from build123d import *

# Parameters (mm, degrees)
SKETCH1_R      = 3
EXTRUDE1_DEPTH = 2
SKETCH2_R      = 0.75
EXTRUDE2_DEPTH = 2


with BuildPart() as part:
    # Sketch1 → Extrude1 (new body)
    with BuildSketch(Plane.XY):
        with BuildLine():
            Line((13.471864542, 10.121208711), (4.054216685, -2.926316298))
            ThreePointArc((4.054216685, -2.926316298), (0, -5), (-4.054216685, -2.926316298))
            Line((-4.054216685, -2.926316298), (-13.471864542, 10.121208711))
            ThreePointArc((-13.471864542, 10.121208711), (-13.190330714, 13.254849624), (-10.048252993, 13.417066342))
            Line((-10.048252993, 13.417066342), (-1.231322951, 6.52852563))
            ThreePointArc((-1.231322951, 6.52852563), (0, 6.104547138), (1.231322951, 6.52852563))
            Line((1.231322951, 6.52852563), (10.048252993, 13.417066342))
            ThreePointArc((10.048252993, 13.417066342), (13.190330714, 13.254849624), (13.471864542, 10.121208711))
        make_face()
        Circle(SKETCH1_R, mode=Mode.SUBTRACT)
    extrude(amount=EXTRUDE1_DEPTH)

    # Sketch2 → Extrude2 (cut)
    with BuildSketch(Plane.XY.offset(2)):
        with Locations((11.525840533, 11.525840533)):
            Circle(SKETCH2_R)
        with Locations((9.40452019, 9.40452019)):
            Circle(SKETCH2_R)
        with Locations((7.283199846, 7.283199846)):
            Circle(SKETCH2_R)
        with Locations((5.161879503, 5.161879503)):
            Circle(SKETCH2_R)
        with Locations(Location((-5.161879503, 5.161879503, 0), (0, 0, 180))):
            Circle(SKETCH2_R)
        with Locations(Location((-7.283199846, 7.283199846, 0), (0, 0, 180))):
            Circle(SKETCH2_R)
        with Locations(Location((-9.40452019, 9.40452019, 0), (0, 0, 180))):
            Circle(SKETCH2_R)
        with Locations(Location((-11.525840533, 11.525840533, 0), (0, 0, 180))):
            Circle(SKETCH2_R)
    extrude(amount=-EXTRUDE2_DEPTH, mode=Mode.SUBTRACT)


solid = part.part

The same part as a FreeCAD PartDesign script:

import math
import FreeCAD as App
import Part
import Sketcher
from FreeCAD import Vector
Q = App.Units.Quantity

doc = App.newDocument("Part")
body = doc.addObject("PartDesign::Body", "Body")

# Sketch on XY plane
sketch1 = doc.addObject("Sketcher::SketchObject", "Sketch")
body.addObject(sketch1)
sketch1.AttachmentSupport = (doc.XY_Plane, [""])
sketch1.MapMode = "FlatFace"
sketch1.addGeometry([
    Part.LineSegment(Vector(4.1, -2.9, 0), Vector(13.5, 10.1, 0)),  # 0
    Part.ArcOfCircle(Part.Circle(Vector(11.5, 11.5, 0), Vector(0, 0, 1), 2.4), math.radians(-36), math.radians(128)),  # 1
    Part.LineSegment(Vector(10, 13.4, 0), Vector(1.2, 6.5, 0)),  # 2
    Part.ArcOfCircle(Part.Circle(Vector(0, 8.1, 0), Vector(0, 0, 1), 2), math.radians(-128), math.radians(-52)),  # 3
    Part.LineSegment(Vector(-1.2, 6.5, 0), Vector(-10, 13.4, 0)),  # 4
    Part.ArcOfCircle(Part.Circle(Vector(-11.5, 11.5, 0), Vector(0, 0, 1), 2.4), math.radians(52), math.radians(216)),  # 5
    Part.LineSegment(Vector(-13.5, 10.1, 0), Vector(-4.1, -2.9, 0)),  # 6
    Part.ArcOfCircle(Part.Circle(Vector(0, 0, 0), Vector(0, 0, 1), 5), math.radians(-144), math.radians(-36)),  # 7
    Part.Circle(Vector(0, 0, 0), Vector(0, 0, 1), 3),  # 8
], False)
sketch1.addConstraint([
    Sketcher.Constraint("Tangent", 0, 2, 1, 1),
    Sketcher.Constraint("Tangent", 1, 2, 2, 1),
    Sketcher.Constraint("Tangent", 2, 2, 3, 2),
    Sketcher.Constraint("Tangent", 3, 1, 4, 1),
    Sketcher.Constraint("Tangent", 4, 2, 5, 1),
    Sketcher.Constraint("Tangent", 5, 2, 6, 1),
    Sketcher.Constraint("Tangent", 6, 2, 7, 1),
    Sketcher.Constraint("Tangent", 7, 2, 0, 1),
    Sketcher.Constraint("Coincident", 7, 3, -1, 1),
    Sketcher.Constraint("Coincident", 8, 3, -1, 1),
    Sketcher.Constraint("Equal", 1, 5),
    Sketcher.Constraint("Symmetric", 1, 3, 5, 3, -2),
    Sketcher.Constraint("PointOnObject", 3, 3, -2),
    Sketcher.Constraint("Diameter", 8, Q("6 mm")),
    Sketcher.Constraint("Radius", 3, Q("2 mm")),
    Sketcher.Constraint("Radius", 7, Q("5 mm")),
    Sketcher.Constraint("Radius", 1, Q("2.4 mm")),
    Sketcher.Constraint("Angle", 2, Q("-142 deg")),
    Sketcher.Constraint("Distance", 0, Q("16.091302 mm")),
    Sketcher.Constraint("DistanceX", -1, 1, 1, 3, Q("11.525841 mm")),
])
pad1 = doc.addObject("PartDesign::Pad", "Pad")
body.addObject(pad1)
pad1.Profile = sketch1
pad1.Length = 2

# Sketch on XY plane
sketch2 = doc.addObject("Sketcher::SketchObject", "Sketch001")
body.addObject(sketch2)
sketch2.AttachmentSupport = (doc.XY_Plane, [""])
sketch2.MapMode = "FlatFace"
sketch2.AttachmentOffset = App.Placement(Vector(0, 0, 2), App.Rotation())
sketch2.addGeometry([
    Part.Circle(Vector(11.5, 11.5, 0), Vector(0, 0, 1), 0.8),  # 0
    Part.Circle(Vector(9.4, 9.4, 0), Vector(0, 0, 1), 0.8),  # 1
    Part.Circle(Vector(7.3, 7.3, 0), Vector(0, 0, 1), 0.8),  # 2
    Part.Circle(Vector(5.2, 5.2, 0), Vector(0, 0, 1), 0.8),  # 3
    Part.Circle(Vector(-5.2, 5.2, 0), Vector(0, 0, 1), 0.8),  # 4
    Part.Circle(Vector(-7.3, 7.3, 0), Vector(0, 0, 1), 0.8),  # 5
    Part.Circle(Vector(-9.4, 9.4, 0), Vector(0, 0, 1), 0.8),  # 6
    Part.Circle(Vector(-11.5, 11.5, 0), Vector(0, 0, 1), 0.8),  # 7
], False)
sketch2.addConstraint([
    Sketcher.Constraint("Equal", 0, 1),
    Sketcher.Constraint("Equal", 1, 2),
    Sketcher.Constraint("Equal", 2, 3),
    Sketcher.Constraint("Equal", 3, 4),
    Sketcher.Constraint("Equal", 4, 5),
    Sketcher.Constraint("Equal", 5, 6),
    Sketcher.Constraint("Equal", 6, 7),
    Sketcher.Constraint("Symmetric", 3, 3, 4, 3, -2),
    Sketcher.Constraint("Symmetric", 2, 3, 5, 3, -2),
    Sketcher.Constraint("Symmetric", 1, 3, 6, 3, -2),
    Sketcher.Constraint("Symmetric", 0, 3, 7, 3, -2),
    Sketcher.Constraint("Diameter", 0, Q("1.5 mm")),
    Sketcher.Constraint("DistanceX", -1, 1, 2, 3, Q("7.2832 mm")),
    Sketcher.Constraint("DistanceY", -1, 1, 2, 3, Q("7.2832 mm")),
    Sketcher.Constraint("DistanceX", 4, 3, 1, 3, Q("14.5664 mm")),
    Sketcher.Constraint("DistanceX", -1, 1, 0, 3, Q("11.525841 mm")),
    Sketcher.Constraint("DistanceY", -1, 1, 0, 3, Q("11.525841 mm")),
    Sketcher.Constraint("DistanceX", -1, 1, 1, 3, Q("9.40452 mm")),
    Sketcher.Constraint("DistanceY", -1, 1, 1, 3, Q("9.40452 mm")),
    Sketcher.Constraint("DistanceY", -1, 1, 3, 3, Q("5.16188 mm")),
])
pocket1 = doc.addObject("PartDesign::Pocket", "Pocket")
body.addObject(pocket1)
pocket1.Profile = sketch2
pocket1.Length = 2

doc.recompute()
